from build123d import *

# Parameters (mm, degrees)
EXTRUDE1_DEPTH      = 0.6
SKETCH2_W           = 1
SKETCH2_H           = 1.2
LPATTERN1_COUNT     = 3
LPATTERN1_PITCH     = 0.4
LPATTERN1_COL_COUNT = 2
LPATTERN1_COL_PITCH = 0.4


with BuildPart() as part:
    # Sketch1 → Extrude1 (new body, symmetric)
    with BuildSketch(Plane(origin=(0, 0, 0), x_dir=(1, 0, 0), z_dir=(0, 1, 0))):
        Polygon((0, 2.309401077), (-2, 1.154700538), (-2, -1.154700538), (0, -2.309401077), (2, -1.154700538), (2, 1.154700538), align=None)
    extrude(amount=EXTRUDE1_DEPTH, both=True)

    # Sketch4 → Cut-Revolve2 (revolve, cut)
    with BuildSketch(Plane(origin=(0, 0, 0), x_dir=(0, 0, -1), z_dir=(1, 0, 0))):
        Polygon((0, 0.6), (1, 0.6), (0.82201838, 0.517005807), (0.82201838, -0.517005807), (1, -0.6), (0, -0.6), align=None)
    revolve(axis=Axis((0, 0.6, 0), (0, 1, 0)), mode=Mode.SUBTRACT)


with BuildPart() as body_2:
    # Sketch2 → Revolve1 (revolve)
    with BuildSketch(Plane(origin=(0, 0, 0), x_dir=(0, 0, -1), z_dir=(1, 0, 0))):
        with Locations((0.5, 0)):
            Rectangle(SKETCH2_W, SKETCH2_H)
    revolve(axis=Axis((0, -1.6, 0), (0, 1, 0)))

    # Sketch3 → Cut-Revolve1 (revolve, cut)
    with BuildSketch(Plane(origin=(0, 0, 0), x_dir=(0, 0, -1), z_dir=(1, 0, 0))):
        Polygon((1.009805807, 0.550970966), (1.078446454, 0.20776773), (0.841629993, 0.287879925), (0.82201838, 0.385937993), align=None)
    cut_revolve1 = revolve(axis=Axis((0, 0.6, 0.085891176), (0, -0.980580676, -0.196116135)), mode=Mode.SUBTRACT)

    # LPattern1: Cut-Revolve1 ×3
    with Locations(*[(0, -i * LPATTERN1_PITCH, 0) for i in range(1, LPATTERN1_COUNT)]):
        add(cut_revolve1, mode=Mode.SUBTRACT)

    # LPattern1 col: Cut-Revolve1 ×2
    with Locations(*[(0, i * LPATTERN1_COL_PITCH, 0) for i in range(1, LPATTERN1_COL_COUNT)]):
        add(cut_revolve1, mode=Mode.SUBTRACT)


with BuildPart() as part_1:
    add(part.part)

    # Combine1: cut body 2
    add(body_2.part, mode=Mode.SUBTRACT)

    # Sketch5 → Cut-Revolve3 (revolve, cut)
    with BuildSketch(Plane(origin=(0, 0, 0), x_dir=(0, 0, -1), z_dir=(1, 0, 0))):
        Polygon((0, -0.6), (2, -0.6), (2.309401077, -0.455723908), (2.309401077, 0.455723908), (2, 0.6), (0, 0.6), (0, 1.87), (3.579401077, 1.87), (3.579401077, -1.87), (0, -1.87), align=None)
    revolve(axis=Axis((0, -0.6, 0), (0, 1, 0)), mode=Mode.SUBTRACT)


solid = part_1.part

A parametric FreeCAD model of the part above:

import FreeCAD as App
import Part
import Sketcher
from FreeCAD import Vector
Q = App.Units.Quantity


def add_polygon(sketch, points):
    """Adds a closed chain of lines whose ends are joined by coincident constraints."""
    first, n = sketch.GeometryCount, len(points)
    for a, b in zip(points, points[1:] + points[:1]):
        sketch.addGeometry(Part.LineSegment(App.Vector(*a, 0), App.Vector(*b, 0)), False)
    for i in range(n):
        sketch.addConstraint(Sketcher.Constraint("Coincident", first + i, 2, first + (i + 1) % n, 1))

doc = App.newDocument("Part")
body = doc.addObject("PartDesign::Body", "Body")

# Sketch on XZ plane
sketch1 = body.newObject("Sketcher::SketchObject", "Sketch")
sketch1.AttachmentSupport = (doc.getObject("XZ_Plane"), [""])
sketch1.MapMode = "FlatFace"
add_polygon(sketch1, [(0, -2.3), (-2, -1.2), (-2, 1.2), (0, 2.3), (2, 1.2), (2, -1.2)])  # lines 0-5
sketch1.addConstraint([
    Sketcher.Constraint("Vertical", 1),
    Sketcher.Constraint("Vertical", 4),
    Sketcher.Constraint("Symmetric", 0, 2, 3, 2, -1, 1),
    Sketcher.Constraint("Symmetric", 2, 2, 5, 2, -1, 1),
    Sketcher.Constraint("PointOnObject", 2, 2, -2),
    Sketcher.Constraint("Parallel", 2, 5),
    Sketcher.Constraint("Horizontal", 1, 2, 3, 2),
    Sketcher.Constraint("Angle", 0, Q("150 deg")),
    Sketcher.Constraint("DistanceX", 0, 2, -1, 1, 2.0),
    Sketcher.Constraint("DistanceY", 1, 1, 1, 2, 2.309401),
])
pad1 = body.newObject("PartDesign::Pad", "Pad")
pad1.Profile = sketch1
pad1.Length = 1.2
pad1.Midplane = True

# Sketch on YZ plane
sketch2 = body.newObject("Sketcher::SketchObject", "Sketch001")
sketch2.AttachmentSupport = (doc.getObject("YZ_Plane"), [""])
sketch2.MapMode = "FlatFace"
add_polygon(sketch2, [(0.6, -1), (0.6, 0), (-0.6, 0), (-0.6, -1), (-0.52, -0.82), (0.52, -0.82)])  # lines 0-5
sketch2.addConstraint([
    Sketcher.Constraint("Vertical", 0),
    Sketcher.Constraint("Horizontal", 1),
    Sketcher.Constraint("Vertical", 2),
    Sketcher.Constraint("Horizontal", 4),
    Sketcher.Constraint("Symmetric", 0, 2, 1, 2, -1, 1),
    Sketcher.Constraint("Horizontal", 2, 2, 5, 2),
    Sketcher.Constraint("Equal", 3, 5),
    Sketcher.Constraint("DistanceY", 0, 1, 0, 2, 1.0),
    Sketcher.Constraint("Angle", 3, Q("65 deg")),
    Sketcher.Constraint("DistanceX", 1, 2, 1, 1, 1.2),
    Sketcher.Constraint("DistanceX", 4, 1, 4, 2, 1.034012),
])
groove = body.newObject("PartDesign::Groove", "Groove")
groove.Profile = sketch2
groove.ReferenceAxis = (sketch2, ["H_Axis"])
groove.Angle = 360
body2 = doc.addObject("PartDesign::Body", "Body001")

# Sketch on YZ plane
sketch3 = body2.newObject("Sketcher::SketchObject", "Sketch002")
sketch3.AttachmentSupport = (doc.getObject("YZ_Plane001"), [""])
sketch3.MapMode = "FlatFace"
add_polygon(sketch3, [(0.6, 0), (-0.6, 0), (-0.6, -1), (0.6, -1)])  # lines 0-3
sketch3.addConstraint([
    Sketcher.Constraint("Horizontal", 0),
    Sketcher.Constraint("Vertical", 1),
    Sketcher.Constraint("Horizontal", 2),
    Sketcher.Constraint("Vertical", 3),
    Sketcher.Constraint("Symmetric", 0, 2, 3, 2, -1, 1),
    Sketcher.Constraint("DistanceY", 1, 2, 1, 1, 1.0),
    Sketcher.Constraint("DistanceX", 0, 2, 0, 1, 1.2),
])
revolution = body2.newObject("PartDesign::Revolution", "Revolution")
revolution.Profile = sketch3
revolution.ReferenceAxis = (sketch3, ["H_Axis"])
revolution.Angle = 360

# Sketch on YZ plane
sketch4 = body2.newObject("Sketcher::SketchObject", "Sketch003")
sketch4.AttachmentSupport = (doc.getObject("YZ_Plane001"), [""])
sketch4.MapMode = "FlatFace"
add_polygon(sketch4, [(0.21, -1.08), (0.55, -1.01), (0.39, -0.82), (0.29, -0.84)])  # lines 0-3
sketch4.addGeometry(Part.LineSegment(Vector(0.34, 0.03, 0), Vector(0, -0.03, 0)), True)  # axis
sketch4.addConstraint([
    Sketcher.Constraint("Parallel", 0, 2),
    Sketcher.Constraint("Parallel", 2, 4),
    Sketcher.Constraint("Equal", 1, 3),
    Sketcher.Constraint("Equal", 0, 4),
    Sketcher.Constraint("Distance", 2, 0.1),
    Sketcher.Constraint("Distance", 0, 0.35),
    Sketcher.Constraint("Distance", 1, 0.25),
    Sketcher.Constraint("DistanceY", 1, 2, 4, 2, 0.787698),
    Sketcher.Constraint("DistanceX", -1, 1, 0, 2, 0.550971),
    Sketcher.Constraint("DistanceY", 1, 2, -1, 1, 0.822018),
    Sketcher.Constraint("DistanceX", -1, 1, 2, 2, 0.28788),
    Sketcher.Constraint("DistanceX", 3, 2, 4, 1, 0.134378),
])
groove2 = body2.newObject("PartDesign::Groove", "Groove001")
groove2.Profile = sketch4
groove2.ReferenceAxis = (sketch4, ["Axis0"])
groove2.Angle = 360
doc.recompute()

linearpattern = body2.newObject("PartDesign::LinearPattern", "LinearPattern")
linearpattern.Originals = [groove2]
linearpattern.Direction = (doc.getObject("Y_Axis001"), [""])
linearpattern.Mode = "offset"
linearpattern.Offset = 0.4
linearpattern.Occurrences = 3
linearpattern.Reversed = True
body2.Tip = linearpattern
doc.recompute()

linearpattern2 = body2.newObject("PartDesign::LinearPattern", "LinearPattern001")
linearpattern2.Originals = [groove2]
linearpattern2.Direction = (doc.getObject("Y_Axis001"), [""])
linearpattern2.Mode = "offset"
linearpattern2.Offset = 0.4
linearpattern2.Occurrences = 2
body2.Tip = linearpattern2
doc.recompute()

boolean = body.newObject("PartDesign::Boolean", "Boolean")
boolean.Type = "Cut"
boolean.addObjects([body2])

# Sketch on YZ plane
sketch5 = body.newObject("Sketcher::SketchObject", "Sketch004")
sketch5.AttachmentSupport = (doc.getObject("YZ_Plane"), [""])
sketch5.MapMode = "FlatFace"
add_polygon(sketch5, [(-0.6, -2), (-0.6, 0), (-1.87, 0), (-1.87, -3.58), (1.87, -3.58), (1.87, 0), (0.6, 0), (0.6, -2), (0.46, -2.31), (-0.46, -2.31)])  # lines 0-9
sketch5.addConstraint([
    Sketcher.Constraint("Vertical", 0),
    Sketcher.Constraint("Horizontal", 1),
    Sketcher.Constraint("Vertical", 2),
    Sketcher.Constraint("Horizontal", 3),
    Sketcher.Constraint("Vertical", 4),
    Sketcher.Constraint("Horizontal", 5),
    Sketcher.Constraint("Vertical", 6),
    Sketcher.Constraint("Horizontal", 8),
    Sketcher.Constraint("Symmetric", 1, 2, 4, 2, -1, 1),
    Sketcher.Constraint("Symmetric", 0, 2, 5, 2, -2),
    Sketcher.Constraint("Horizontal", 6, 2, 9, 2),
    Sketcher.Constraint("Equal", 7, 9),
    Sketcher.Constraint("DistanceY", 0, 1, 0, 2, 2.0),
    Sketcher.Constraint("Angle", 7, Q("-115 deg")),
    Sketcher.Constraint("DistanceX", 1, 2, 1, 1, 1.27),
    Sketcher.Constraint("DistanceX", 3, 1, 3, 2, 3.74),
    Sketcher.Constraint("DistanceY", 3, 2, 7, 2, 1.27),
    Sketcher.Constraint("DistanceY", 2, 2, 2, 1, 3.579401),
])
groove3 = body.newObject("PartDesign::Groove", "Groove002")
groove3.Profile = sketch5
groove3.ReferenceAxis = (sketch5, ["H_Axis"])
groove3.Angle = 360

doc.recompute()
